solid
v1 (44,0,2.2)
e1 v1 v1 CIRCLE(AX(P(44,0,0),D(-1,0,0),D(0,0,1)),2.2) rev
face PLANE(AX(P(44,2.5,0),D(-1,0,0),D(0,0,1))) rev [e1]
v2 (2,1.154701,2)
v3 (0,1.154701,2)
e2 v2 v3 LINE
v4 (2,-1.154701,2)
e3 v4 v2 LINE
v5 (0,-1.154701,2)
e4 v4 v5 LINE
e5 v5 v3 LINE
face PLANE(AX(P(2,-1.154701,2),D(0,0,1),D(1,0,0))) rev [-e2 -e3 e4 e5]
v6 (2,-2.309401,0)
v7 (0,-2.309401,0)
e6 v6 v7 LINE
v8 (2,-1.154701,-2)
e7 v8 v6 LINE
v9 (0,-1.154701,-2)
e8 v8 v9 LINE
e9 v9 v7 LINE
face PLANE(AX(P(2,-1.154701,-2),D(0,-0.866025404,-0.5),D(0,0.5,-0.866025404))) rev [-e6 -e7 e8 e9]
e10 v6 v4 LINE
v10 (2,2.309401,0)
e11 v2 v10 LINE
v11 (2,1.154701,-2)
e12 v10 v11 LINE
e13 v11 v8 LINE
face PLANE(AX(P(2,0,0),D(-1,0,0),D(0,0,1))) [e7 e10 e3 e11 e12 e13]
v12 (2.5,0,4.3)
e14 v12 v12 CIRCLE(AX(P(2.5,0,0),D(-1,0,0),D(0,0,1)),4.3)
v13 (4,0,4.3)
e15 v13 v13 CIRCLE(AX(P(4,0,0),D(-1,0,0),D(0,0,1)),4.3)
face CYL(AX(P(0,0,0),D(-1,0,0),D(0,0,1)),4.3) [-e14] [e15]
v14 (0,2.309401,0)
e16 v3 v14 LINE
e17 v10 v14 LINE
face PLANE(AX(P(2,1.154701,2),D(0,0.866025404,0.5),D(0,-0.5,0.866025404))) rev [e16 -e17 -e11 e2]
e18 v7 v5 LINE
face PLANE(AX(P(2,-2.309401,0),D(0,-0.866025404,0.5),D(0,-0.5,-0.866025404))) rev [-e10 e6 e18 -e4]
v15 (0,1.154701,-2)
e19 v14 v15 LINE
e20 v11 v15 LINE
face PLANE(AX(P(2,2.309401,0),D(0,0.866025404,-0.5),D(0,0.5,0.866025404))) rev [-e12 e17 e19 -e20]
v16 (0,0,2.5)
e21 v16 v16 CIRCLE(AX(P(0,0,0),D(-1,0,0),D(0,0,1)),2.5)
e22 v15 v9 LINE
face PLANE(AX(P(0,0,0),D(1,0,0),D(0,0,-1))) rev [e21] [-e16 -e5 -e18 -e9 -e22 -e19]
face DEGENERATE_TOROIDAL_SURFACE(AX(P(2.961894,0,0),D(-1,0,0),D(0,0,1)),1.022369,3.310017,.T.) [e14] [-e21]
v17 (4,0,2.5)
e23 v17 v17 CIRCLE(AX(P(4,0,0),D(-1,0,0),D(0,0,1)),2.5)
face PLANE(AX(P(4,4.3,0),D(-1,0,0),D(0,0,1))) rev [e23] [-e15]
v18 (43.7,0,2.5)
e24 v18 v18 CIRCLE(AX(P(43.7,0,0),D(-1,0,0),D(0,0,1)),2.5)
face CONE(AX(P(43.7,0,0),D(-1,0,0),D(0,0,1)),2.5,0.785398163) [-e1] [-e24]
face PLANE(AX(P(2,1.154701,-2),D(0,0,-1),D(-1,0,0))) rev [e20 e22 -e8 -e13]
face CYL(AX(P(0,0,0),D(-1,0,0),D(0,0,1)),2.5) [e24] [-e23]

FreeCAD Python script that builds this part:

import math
import FreeCAD as App
import Part
import Sketcher

V = App.Vector
Q = App.Units.Quantity


def edges_at(feature, points):
    """Names of the edges that pass closest to the given points."""
    edges = feature.Shape.Edges
    near = lambda p: min(range(len(edges)), key=lambda i: edges[i].distToShape(Part.Vertex(*p))[0])
    return sorted({f"Edge{near(p) + 1}" for p in points})

doc = App.newDocument("Part")
body = doc.addObject("PartDesign::Body", "Body")

# Sketch on XY plane
sketch1 = doc.addObject("Sketcher::SketchObject", "Sketch")
body.addObject(sketch1)
sketch1.AttachmentSupport = (doc.XY_Plane, [""])
sketch1.MapMode = "FlatFace"
sketch1.addGeometry([
    Part.LineSegment(V(0, 0, 0), V(44, 0, 0)),  # 0
    Part.LineSegment(V(44, 0, 0), V(44, 2.5, 0)),  # 1
    Part.LineSegment(V(44, 2.5, 0), V(4, 2.5, 0)),  # 2
    Part.LineSegment(V(4, 2.5, 0), V(4, 4.3, 0)),  # 3
    Part.LineSegment(V(4, 4.3, 0), V(2.5, 4.3, 0)),  # 4
    Part.ArcOfCircle(Part.Circle(V(2.961894, 1.022369, 0), V(0, 0, 1), 3.310017), math.radians(98.021481), math.radians(153.486294)),  # 5
    Part.LineSegment(V(0, 2.5, 0), V(0, 0, 0)),  # 6
], False)
sketch1.addConstraint([
    Sketcher.Constraint("Coincident", 0, 2, 1, 1),
    Sketcher.Constraint("Coincident", 1, 2, 2, 1),
    Sketcher.Constraint("Coincident", 2, 2, 3, 1),
    Sketcher.Constraint("Coincident", 3, 2, 4, 1),
    Sketcher.Constraint("Coincident", 4, 2, 5, 1),
    Sketcher.Constraint("Coincident", 5, 2, 6, 1),
    Sketcher.Constraint("Coincident", 6, 2, 0, 1),
    Sketcher.Constraint("Horizontal", 0),
    Sketcher.Constraint("Vertical", 1),
    Sketcher.Constraint("Horizontal", 2),
    Sketcher.Constraint("Vertical", 3),
    Sketcher.Constraint("Horizontal", 4),
    Sketcher.Constraint("Vertical", 6),
    Sketcher.Constraint("Coincident", 6, 2, -1, 1),
    Sketcher.Constraint("Horizontal", 2, 2, 5, 2),
    Sketcher.Constraint("DistanceX", 0, 1, 0, 2, 44.0),
    Sketcher.Constraint("DistanceX", 2, 2, 2, 1, 40.0),
    Sketcher.Constraint("DistanceX", 4, 2, 4, 1, 1.5),
    Sketcher.Constraint("DistanceY", 1, 1, 1, 2, 2.5),
    Sketcher.Constraint("DistanceY", 3, 1, 3, 2, 1.8),
    Sketcher.Constraint("Radius", 5, 3.310017),
])
revolution = doc.addObject("PartDesign::Revolution", "Revolution")
body.addObject(revolution)
revolution.Profile = sketch1
revolution.ReferenceAxis = (sketch1, ["H_Axis"])
revolution.Angle = 360
doc.recompute()

chamfer = doc.addObject("PartDesign::Chamfer", "Chamfer")
body.addObject(chamfer)
chamfer.Base = (revolution, edges_at(revolution, [(44, -2.5, 0)]))
chamfer.Size = 0.3

# Sketch on YZ plane
sketch2 = doc.addObject("Sketcher::SketchObject", "Sketch001")
body.addObject(sketch2)
sketch2.AttachmentSupport = (doc.YZ_Plane, [""])
sketch2.MapMode = "FlatFace"
sketch2.addGeometry([
    Part.LineSegment(V(2.309401, 0, 0), V(1.154701, -2, 0)),  # 0
    Part.LineSegment(V(1.154701, -2, 0), V(-1.154701, -2, 0)),  # 1
    Part.LineSegment(V(-1.154701, -2, 0), V(-2.309401, 0, 0)),  # 2
    Part.LineSegment(V(-2.309401, 0, 0), V(-1.154701, 2, 0)),  # 3
    Part.LineSegment(V(-1.154701, 2, 0), V(1.154701, 2, 0)),  # 4
    Part.LineSegment(V(1.154701, 2, 0), V(2.309401, 0, 0)),  # 5
], False)
sketch2.addConstraint([
    Sketcher.Constraint("Coincident", 0, 2, 1, 1),
    Sketcher.Constraint("Coincident", 1, 2, 2, 1),
    Sketcher.Constraint("Coincident", 2, 2, 3, 1),
    Sketcher.Constraint("Coincident", 3, 2, 4, 1),
    Sketcher.Constraint("Coincident", 4, 2, 5, 1),
    Sketcher.Constraint("Coincident", 5, 2, 0, 1),
    Sketcher.Constraint("Horizontal", 1),
    Sketcher.Constraint("Horizontal", 4),
    Sketcher.Constraint("Symmetric", 0, 2, 3, 2, -1, 1),
    Sketcher.Constraint("Symmetric", 2, 2, 5, 2, -1, 1),
    Sketcher.Constraint("PointOnObject", 2, 2, -1),
    Sketcher.Constraint("Parallel", 2, 5),
    Sketcher.Constraint("Vertical", 1, 2, 3, 2),
    Sketcher.Constraint("Angle", 0, Q("-120 deg")),
    Sketcher.Constraint("DistanceY", 0, 2, -1, 1, 2.0),
    Sketcher.Constraint("DistanceX", 1, 2, 1, 1, 2.309401),
])
pocket1 = doc.addObject("PartDesign::Pocket", "Pocket")
body.addObject(pocket1)
pocket1.Profile = sketch2
pocket1.Length = 2
pocket1.Reversed = True

doc.recompute()
